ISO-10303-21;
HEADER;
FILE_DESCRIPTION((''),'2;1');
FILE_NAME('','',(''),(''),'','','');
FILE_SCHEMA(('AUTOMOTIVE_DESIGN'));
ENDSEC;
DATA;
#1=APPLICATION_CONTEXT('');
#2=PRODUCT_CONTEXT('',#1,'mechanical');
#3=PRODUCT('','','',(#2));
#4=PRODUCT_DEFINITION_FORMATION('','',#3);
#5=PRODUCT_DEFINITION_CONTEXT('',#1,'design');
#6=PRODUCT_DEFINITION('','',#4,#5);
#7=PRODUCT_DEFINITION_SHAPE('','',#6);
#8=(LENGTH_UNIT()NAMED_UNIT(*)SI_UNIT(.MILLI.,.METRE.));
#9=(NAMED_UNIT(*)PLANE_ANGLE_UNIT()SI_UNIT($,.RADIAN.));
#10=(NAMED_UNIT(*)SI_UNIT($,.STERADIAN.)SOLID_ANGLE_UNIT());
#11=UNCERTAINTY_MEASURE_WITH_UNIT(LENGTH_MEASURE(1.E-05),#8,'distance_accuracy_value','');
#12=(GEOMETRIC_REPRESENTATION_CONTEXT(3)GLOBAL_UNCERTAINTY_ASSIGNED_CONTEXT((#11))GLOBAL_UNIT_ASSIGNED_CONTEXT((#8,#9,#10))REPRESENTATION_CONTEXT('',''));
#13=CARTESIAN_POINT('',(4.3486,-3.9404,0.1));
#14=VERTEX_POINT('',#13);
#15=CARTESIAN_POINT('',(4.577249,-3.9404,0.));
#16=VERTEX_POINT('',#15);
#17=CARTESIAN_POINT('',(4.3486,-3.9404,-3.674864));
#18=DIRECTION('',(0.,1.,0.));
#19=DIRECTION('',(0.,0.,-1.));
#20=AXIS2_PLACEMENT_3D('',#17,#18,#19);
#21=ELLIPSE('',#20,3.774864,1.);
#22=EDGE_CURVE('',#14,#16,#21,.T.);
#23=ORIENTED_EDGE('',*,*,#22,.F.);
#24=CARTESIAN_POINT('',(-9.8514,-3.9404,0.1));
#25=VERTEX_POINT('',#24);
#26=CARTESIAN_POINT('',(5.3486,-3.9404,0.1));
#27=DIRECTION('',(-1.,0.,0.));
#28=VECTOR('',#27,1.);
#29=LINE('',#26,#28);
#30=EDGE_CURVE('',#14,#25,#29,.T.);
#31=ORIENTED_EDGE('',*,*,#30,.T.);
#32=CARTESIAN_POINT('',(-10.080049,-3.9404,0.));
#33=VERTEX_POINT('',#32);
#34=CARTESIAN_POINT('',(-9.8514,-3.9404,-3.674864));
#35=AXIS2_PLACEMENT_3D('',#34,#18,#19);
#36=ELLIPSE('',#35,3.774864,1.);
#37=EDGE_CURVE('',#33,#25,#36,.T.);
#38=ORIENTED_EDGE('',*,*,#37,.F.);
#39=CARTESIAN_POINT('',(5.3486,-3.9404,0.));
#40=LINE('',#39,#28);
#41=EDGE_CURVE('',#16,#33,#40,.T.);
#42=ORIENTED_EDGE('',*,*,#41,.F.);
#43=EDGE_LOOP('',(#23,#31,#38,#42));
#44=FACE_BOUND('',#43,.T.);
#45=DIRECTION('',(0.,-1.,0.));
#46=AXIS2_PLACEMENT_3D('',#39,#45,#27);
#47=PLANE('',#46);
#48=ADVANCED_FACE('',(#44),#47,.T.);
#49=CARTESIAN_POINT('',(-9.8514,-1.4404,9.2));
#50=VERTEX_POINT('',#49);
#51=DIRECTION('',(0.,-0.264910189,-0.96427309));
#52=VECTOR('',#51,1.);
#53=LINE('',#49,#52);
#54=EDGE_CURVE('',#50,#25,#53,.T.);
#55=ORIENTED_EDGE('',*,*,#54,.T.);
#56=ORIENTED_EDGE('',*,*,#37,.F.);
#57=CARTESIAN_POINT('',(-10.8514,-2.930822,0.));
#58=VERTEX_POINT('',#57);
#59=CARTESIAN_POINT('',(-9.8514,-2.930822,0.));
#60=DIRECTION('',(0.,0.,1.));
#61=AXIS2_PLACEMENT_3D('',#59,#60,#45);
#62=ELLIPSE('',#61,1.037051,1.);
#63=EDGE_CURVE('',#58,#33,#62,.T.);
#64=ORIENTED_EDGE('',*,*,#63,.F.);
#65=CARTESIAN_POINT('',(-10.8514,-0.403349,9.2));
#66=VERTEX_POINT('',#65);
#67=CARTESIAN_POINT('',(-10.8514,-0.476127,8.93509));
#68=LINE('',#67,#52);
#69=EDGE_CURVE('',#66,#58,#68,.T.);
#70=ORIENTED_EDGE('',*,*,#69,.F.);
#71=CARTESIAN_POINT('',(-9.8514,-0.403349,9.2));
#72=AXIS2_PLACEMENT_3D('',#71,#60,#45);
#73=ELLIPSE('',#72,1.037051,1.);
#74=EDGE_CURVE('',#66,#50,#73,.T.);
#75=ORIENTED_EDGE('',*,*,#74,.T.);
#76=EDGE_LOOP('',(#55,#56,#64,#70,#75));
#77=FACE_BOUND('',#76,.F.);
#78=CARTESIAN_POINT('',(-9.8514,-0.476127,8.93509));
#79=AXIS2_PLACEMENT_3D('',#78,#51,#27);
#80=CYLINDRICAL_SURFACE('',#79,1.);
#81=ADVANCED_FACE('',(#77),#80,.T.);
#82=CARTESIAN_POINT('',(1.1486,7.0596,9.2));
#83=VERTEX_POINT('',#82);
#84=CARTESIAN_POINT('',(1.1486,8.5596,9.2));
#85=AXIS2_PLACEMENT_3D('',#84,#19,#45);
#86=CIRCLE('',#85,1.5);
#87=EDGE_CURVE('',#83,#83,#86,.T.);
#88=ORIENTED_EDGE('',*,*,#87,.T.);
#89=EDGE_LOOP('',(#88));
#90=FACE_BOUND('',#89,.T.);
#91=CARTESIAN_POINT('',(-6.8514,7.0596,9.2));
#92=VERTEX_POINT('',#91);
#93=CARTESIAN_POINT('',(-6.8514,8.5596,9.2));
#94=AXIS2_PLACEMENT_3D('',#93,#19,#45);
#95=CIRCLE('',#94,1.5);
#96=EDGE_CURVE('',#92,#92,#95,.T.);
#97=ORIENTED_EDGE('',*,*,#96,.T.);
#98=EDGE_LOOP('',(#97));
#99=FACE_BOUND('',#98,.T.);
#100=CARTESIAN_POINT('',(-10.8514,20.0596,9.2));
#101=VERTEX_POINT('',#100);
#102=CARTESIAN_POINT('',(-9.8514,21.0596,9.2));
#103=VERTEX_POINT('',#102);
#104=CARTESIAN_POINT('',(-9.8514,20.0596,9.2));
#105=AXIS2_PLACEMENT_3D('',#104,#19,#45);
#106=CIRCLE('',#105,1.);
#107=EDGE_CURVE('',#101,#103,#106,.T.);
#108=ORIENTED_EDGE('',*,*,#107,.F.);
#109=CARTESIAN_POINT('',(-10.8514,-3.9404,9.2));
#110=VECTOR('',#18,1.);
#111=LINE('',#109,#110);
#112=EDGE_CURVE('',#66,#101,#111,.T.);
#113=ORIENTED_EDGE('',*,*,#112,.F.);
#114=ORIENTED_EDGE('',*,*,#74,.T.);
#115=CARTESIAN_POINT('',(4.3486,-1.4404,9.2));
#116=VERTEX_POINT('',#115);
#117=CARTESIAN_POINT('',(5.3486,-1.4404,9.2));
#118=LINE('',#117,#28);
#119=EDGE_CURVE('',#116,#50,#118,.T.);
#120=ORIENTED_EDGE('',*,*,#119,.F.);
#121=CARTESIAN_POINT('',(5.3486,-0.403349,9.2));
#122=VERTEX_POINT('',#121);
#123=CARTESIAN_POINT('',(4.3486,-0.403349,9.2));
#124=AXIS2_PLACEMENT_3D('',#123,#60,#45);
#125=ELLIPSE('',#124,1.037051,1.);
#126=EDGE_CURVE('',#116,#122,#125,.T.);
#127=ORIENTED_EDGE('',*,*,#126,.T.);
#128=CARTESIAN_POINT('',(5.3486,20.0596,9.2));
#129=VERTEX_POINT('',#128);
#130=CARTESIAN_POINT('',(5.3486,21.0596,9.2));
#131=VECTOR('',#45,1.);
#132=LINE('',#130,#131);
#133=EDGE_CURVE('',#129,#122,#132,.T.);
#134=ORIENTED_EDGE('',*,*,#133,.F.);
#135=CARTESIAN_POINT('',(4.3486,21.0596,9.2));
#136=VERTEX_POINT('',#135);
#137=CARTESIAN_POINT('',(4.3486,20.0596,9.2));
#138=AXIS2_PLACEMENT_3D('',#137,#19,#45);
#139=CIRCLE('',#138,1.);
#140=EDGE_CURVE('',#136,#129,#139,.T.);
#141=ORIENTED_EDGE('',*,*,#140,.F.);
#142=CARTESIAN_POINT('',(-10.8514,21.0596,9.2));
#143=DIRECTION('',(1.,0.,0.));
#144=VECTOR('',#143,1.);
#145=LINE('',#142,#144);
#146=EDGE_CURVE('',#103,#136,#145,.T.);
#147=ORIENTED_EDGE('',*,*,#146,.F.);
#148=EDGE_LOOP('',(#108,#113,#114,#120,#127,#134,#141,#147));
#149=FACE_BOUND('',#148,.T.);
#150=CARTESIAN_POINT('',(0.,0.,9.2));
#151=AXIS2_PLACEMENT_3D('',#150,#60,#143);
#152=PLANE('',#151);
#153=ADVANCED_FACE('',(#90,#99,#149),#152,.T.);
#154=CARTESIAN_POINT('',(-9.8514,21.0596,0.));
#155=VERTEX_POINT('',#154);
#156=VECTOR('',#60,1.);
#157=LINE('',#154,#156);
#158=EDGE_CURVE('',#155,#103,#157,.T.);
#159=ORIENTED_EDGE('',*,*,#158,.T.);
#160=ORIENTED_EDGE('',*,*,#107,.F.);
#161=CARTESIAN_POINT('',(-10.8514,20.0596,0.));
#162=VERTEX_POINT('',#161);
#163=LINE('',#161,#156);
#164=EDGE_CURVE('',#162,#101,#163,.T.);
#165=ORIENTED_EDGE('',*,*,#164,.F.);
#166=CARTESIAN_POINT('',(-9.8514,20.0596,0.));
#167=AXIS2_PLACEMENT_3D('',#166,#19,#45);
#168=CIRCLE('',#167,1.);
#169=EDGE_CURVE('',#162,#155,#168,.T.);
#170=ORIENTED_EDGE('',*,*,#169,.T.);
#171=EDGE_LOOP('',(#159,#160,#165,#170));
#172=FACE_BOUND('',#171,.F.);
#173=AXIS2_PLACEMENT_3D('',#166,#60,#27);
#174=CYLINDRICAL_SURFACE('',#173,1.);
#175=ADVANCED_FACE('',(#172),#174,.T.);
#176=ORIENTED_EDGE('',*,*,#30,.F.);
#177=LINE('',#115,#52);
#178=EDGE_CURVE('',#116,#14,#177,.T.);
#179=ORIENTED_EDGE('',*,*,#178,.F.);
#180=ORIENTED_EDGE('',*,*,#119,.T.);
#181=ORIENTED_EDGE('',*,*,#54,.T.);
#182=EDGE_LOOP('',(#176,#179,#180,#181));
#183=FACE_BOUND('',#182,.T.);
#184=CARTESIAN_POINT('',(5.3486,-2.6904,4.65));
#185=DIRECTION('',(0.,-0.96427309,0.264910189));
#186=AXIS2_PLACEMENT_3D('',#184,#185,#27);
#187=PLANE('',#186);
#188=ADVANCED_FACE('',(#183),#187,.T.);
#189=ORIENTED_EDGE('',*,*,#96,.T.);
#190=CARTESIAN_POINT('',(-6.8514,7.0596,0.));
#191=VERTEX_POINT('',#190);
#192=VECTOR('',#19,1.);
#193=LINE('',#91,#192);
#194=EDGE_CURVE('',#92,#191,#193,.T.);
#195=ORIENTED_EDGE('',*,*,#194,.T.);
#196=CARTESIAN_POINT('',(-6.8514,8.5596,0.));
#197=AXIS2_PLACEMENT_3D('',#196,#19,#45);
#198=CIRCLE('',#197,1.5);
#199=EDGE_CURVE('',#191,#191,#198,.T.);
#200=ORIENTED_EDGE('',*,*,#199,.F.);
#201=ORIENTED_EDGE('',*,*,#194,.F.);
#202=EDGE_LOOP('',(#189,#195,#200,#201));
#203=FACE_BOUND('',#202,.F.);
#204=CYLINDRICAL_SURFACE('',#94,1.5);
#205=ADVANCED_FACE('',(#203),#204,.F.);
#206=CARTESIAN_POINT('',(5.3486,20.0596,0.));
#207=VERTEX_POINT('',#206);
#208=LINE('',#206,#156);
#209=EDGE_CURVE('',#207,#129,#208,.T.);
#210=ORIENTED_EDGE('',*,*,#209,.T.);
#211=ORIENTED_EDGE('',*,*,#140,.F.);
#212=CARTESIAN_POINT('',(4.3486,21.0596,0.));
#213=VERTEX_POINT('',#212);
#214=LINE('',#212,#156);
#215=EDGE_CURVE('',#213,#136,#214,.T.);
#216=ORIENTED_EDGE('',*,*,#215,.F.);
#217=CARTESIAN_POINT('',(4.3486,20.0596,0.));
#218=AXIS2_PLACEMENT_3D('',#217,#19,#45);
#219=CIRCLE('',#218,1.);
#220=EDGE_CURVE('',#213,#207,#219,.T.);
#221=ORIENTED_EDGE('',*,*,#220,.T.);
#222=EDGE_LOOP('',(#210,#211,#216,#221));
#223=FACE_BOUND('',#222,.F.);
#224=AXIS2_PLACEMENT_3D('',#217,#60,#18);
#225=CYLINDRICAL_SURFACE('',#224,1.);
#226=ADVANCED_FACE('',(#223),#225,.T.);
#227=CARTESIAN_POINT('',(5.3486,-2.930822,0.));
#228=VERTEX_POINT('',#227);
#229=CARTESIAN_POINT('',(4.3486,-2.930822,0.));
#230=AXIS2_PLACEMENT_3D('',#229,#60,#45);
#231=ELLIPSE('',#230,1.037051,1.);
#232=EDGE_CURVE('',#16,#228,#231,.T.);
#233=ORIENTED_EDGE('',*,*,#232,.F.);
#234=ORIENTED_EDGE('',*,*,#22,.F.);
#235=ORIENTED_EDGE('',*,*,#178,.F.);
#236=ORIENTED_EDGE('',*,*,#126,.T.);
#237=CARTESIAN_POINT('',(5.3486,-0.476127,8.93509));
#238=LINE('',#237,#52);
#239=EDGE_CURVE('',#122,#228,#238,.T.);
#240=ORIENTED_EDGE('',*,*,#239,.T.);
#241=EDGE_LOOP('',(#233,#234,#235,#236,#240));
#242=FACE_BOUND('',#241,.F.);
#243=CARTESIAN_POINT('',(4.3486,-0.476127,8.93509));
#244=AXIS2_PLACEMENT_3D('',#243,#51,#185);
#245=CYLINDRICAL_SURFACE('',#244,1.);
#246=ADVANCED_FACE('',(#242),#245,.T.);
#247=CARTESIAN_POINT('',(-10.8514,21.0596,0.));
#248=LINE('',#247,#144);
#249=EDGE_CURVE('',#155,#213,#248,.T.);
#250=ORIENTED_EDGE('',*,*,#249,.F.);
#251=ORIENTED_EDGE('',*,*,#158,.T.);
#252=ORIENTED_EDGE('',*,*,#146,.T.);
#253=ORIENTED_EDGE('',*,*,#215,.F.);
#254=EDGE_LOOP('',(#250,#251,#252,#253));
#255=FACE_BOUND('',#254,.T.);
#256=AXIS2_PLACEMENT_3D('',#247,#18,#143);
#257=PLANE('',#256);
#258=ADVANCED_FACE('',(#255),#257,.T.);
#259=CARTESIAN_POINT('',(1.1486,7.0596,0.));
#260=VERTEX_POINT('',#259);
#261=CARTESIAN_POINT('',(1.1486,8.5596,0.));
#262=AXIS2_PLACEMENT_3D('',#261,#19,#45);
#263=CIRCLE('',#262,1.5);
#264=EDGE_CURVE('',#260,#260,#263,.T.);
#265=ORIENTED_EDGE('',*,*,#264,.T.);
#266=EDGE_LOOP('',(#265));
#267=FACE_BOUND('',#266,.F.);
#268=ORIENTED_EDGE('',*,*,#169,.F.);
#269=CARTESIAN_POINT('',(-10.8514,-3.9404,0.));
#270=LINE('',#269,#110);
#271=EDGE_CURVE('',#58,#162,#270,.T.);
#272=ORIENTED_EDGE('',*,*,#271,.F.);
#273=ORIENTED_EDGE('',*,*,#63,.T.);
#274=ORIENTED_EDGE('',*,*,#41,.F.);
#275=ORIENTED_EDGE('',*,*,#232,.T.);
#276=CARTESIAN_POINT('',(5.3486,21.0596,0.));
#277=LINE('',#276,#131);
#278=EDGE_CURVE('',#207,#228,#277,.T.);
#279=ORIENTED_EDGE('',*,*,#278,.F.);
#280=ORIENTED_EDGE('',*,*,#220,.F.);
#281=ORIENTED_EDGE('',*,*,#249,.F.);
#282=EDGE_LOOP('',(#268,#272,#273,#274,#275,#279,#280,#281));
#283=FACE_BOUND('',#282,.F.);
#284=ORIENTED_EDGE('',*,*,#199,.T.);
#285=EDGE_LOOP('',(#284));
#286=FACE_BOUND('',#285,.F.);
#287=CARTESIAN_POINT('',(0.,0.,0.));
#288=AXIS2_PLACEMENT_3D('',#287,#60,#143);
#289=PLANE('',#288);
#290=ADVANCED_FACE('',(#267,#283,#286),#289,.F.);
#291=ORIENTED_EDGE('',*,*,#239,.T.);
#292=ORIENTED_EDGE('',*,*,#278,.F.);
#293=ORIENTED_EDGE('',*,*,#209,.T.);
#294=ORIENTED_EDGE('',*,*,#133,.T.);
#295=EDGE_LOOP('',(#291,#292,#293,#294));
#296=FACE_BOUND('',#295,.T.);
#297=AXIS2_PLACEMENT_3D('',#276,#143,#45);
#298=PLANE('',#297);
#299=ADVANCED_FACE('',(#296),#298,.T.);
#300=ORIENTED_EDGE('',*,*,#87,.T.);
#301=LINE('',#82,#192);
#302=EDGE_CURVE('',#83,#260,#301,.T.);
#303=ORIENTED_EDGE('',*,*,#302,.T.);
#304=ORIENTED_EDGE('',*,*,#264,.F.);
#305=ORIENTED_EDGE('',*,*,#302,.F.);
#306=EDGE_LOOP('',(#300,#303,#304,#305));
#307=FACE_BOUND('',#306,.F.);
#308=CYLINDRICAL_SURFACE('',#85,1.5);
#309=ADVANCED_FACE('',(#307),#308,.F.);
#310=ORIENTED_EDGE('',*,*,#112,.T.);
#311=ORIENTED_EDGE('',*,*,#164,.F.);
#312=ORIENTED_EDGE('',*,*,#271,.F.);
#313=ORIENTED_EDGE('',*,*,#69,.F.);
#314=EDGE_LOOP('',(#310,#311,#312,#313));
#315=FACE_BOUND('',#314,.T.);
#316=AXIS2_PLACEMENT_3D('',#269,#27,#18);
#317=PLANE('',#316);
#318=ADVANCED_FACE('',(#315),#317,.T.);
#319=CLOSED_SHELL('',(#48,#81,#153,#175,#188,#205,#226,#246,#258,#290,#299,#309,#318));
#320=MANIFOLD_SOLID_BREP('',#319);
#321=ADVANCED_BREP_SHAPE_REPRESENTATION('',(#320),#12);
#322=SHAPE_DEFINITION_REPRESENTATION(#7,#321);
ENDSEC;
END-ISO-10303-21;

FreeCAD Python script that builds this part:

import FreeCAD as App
import Part
import Sketcher
from FreeCAD import Vector


def edges_at(feature, points):
    """Names of the edges that pass closest to the given points."""
    edges = feature.Shape.Edges
    near = lambda p: min(range(len(edges)), key=lambda i: edges[i].distToShape(Part.Vertex(*p))[0])
    return sorted({f"Edge{near(p) + 1}" for p in points})


def add_polygon(sketch, points):
    """Adds a closed chain of lines whose ends are joined by coincident constraints."""
    first, n = sketch.GeometryCount, len(points)
    for a, b in zip(points, points[1:] + points[:1]):
        sketch.addGeometry(Part.LineSegment(App.Vector(*a, 0), App.Vector(*b, 0)), False)
    for i in range(n):
        sketch.addConstraint(Sketcher.Constraint("Coincident", first + i, 2, first + (i + 1) % n, 1))

doc = App.newDocument("Part")
params = doc.addObject("Spreadsheet::Sheet", "Params")
for row, (alias, value) in enumerate([
    ("sketch1_height", "25 mm"),
    ("sketch1_width", "16.2 mm"),
    ("pad1_length", "9.2 mm"),
    ("sketch2_diameter", "3 mm"),
    ("hole_diameter", "3 mm"),
    ("chamfer_size", "2.5 mm"),
    ("chamfer_size2", "9.1 mm"),
    ("fillet_radius", "1 mm"),
], start=1):
    params.set(f"A{row}", alias)
    params.set(f"B{row}", "=" + value)
    params.setAlias(f"B{row}", alias)

body = doc.addObject("PartDesign::Body", "Body")

# Sketch on XY plane
sketch1 = body.newObject("Sketcher::SketchObject", "Sketch")
sketch1.AttachmentSupport = (doc.getObject("XY_Plane"), [""])
sketch1.MapMode = "FlatFace"
add_polygon(sketch1, [(5, 21), (-11, 21), (-11, -4), (5, -4)])  # lines 0-3
sketch1.addConstraint(Sketcher.Constraint("Horizontal", 0))
sketch1.addConstraint(Sketcher.Constraint("Vertical", 1))
sketch1.addConstraint(Sketcher.Constraint("Horizontal", 2))
sketch1.addConstraint(Sketcher.Constraint("Vertical", 3))
sketch1.addConstraint(Sketcher.Constraint("DistanceY", 1, 2, 1, 1, 25.0))
sketch1.addConstraint(Sketcher.Constraint("DistanceX", 0, 2, 0, 1, 16.2))
sketch1.addConstraint(Sketcher.Constraint("DistanceX", 0, 2, -1, 1, 10.8514))
sketch1.addConstraint(Sketcher.Constraint("DistanceY", -1, 1, 0, 2, 21.0596))
sketch1.setExpression("Constraints[8]", "Params.sketch1_height")
sketch1.setExpression("Constraints[9]", "Params.sketch1_width")
pad1 = body.newObject("PartDesign::Pad", "Pad")
pad1.Profile = sketch1
pad1.setExpression("Length", "Params.pad1_length")

# Sketch on XY plane
sketch2 = body.newObject("Sketcher::SketchObject", "Sketch001")
sketch2.AttachmentSupport = (doc.getObject("XY_Plane"), [""])
sketch2.MapMode = "FlatFace"
sketch2.AttachmentOffset = App.Placement(Vector(0, 0, 9.2), App.Rotation())
sketch2.addGeometry(Part.Circle(Vector(-6.9, 8.6, 0), Vector(0, 0, 1), 1.5), False)
sketch2.addGeometry(Part.Circle(Vector(1.1, 8.6, 0), Vector(0, 0, 1), 1.5), False)
sketch2.addConstraint(Sketcher.Constraint("Equal", 0, 1))
sketch2.addConstraint(Sketcher.Constraint("Horizontal", 0, 3, 1, 3))
sketch2.addConstraint(Sketcher.Constraint("Diameter", 0, 3.0))
sketch2.addConstraint(Sketcher.Constraint("DistanceX", 0, 3, 1, 3, 8.0))
sketch2.addConstraint(Sketcher.Constraint("DistanceX", 0, 3, -1, 1, 6.8514))
sketch2.addConstraint(Sketcher.Constraint("DistanceY", -1, 1, 0, 3, 8.5596))
sketch2.setExpression("Constraints[2]", "Params.sketch2_diameter")
doc.recompute()
hole = body.newObject("PartDesign::Hole", "Hole")
hole.Profile = sketch2
hole.ThreadType = "None"
hole.setExpression("Diameter", "Params.hole_diameter")
hole.DepthType = "ThroughAll"
doc.recompute()

chamfer = body.newObject("PartDesign::Chamfer", "Chamfer")
chamfer.Base = (hole, edges_at(hole, [(-2.751, -3.94, 9.2)]))
chamfer.ChamferType = "Two distances"
chamfer.setExpression("Size", "Params.chamfer_size")
chamfer.setExpression("Size2", "Params.chamfer_size2")
doc.recompute()

fillet = body.newObject("PartDesign::Fillet", "Fillet")
fillet.Base = (chamfer, edges_at(chamfer, [
    (-10.851, 21.06, 4.6),
    (5.349, -2.69, 4.65),
    (-10.851, -2.69, 4.65),
    (5.349, 21.06, 4.6),
]))
fillet.setExpression("Radius", "Params.fillet_radius")

doc.recompute()
